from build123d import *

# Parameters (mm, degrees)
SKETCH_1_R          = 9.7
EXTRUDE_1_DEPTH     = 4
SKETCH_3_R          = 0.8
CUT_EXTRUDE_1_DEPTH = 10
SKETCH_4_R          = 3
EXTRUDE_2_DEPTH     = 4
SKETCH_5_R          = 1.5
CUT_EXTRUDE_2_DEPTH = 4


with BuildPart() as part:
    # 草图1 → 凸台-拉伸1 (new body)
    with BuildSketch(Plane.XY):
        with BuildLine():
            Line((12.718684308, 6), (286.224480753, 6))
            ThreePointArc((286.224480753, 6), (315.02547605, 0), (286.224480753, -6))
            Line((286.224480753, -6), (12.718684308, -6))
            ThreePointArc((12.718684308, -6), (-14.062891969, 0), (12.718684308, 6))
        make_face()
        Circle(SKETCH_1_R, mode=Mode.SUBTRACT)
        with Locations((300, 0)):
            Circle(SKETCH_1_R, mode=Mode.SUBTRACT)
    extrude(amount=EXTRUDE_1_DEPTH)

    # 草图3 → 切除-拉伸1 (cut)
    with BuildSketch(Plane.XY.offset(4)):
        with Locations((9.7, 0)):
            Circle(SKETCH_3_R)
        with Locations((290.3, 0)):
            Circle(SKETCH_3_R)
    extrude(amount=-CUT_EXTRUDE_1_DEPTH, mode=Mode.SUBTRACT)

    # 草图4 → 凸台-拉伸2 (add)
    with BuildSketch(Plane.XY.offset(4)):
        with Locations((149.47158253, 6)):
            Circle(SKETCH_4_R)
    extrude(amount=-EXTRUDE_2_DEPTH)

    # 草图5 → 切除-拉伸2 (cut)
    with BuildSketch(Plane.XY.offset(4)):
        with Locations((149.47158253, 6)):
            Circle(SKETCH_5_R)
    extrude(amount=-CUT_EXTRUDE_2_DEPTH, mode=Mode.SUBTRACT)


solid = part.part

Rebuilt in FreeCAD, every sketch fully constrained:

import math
import FreeCAD as App
import Part
import Sketcher
from FreeCAD import Vector

doc = App.newDocument("Part")
body = doc.addObject("PartDesign::Body", "Body")

# Sketch on XY plane
sketch1 = doc.addObject("Sketcher::SketchObject", "Sketch")
body.addObject(sketch1)
sketch1.AttachmentSupport = (doc.XY_Plane, [""])
sketch1.MapMode = "FlatFace"
sketch1.addGeometry([
    Part.LineSegment(Vector(286, 6, 0), Vector(13, 6, 0)),  # 0
    Part.ArcOfCircle(Part.Circle(Vector(0, 0, 0), Vector(0, 0, 1), 14), math.radians(25), math.radians(335)),  # 1
    Part.LineSegment(Vector(13, -6, 0), Vector(286, -6, 0)),  # 2
    Part.ArcOfCircle(Part.Circle(Vector(300, 0, 0), Vector(0, 0, 1), 15), math.radians(-156), math.radians(156)),  # 3
    Part.Circle(Vector(300, 0, 0), Vector(0, 0, 1), 10),  # 4
    Part.Circle(Vector(0, 0, 0), Vector(0, 0, 1), 10),  # 5
], False)
sketch1.addConstraint([
    Sketcher.Constraint("Coincident", 0, 2, 1, 1),
    Sketcher.Constraint("Coincident", 1, 2, 2, 1),
    Sketcher.Constraint("Coincident", 2, 2, 3, 1),
    Sketcher.Constraint("Coincident", 3, 2, 0, 1),
    Sketcher.Constraint("Horizontal", 0),
    Sketcher.Constraint("Horizontal", 2),
    Sketcher.Constraint("Coincident", 1, 3, -1, 1),
    Sketcher.Constraint("Coincident", 5, 3, -1, 1),
    Sketcher.Constraint("Coincident", 4, 3, 3, 3),
    Sketcher.Constraint("Equal", 4, 5),
    Sketcher.Constraint("Symmetric", 2, 2, 3, 2, -1),
    Sketcher.Constraint("Diameter", 4, 19.4),
    Sketcher.Constraint("DistanceX", -1, 1, 3, 3, 300.0),
    Sketcher.Constraint("DistanceY", -1, 1, 0, 2, 6.0),
    Sketcher.Constraint("Radius", 1, 14.062892),
    Sketcher.Constraint("Radius", 3, 15.025476),
])
pad1 = doc.addObject("PartDesign::Pad", "Pad")
body.addObject(pad1)
pad1.Profile = sketch1
pad1.Length = 4

# Sketch on XY plane
sketch2 = doc.addObject("Sketcher::SketchObject", "Sketch001")
body.addObject(sketch2)
sketch2.AttachmentSupport = (doc.XY_Plane, [""])
sketch2.MapMode = "FlatFace"
sketch2.AttachmentOffset = App.Placement(Vector(0, 0, 4), App.Rotation())
sketch2.addGeometry([
    Part.Circle(Vector(9.7, 0, 0), Vector(0, 0, 1), 0.8),
    Part.Circle(Vector(290.3, 0, 0), Vector(0, 0, 1), 0.8),
], False)
sketch2.addConstraint([
    Sketcher.Constraint("Equal", 0, 1),
    Sketcher.Constraint("PointOnObject", 0, 3, -1),
    Sketcher.Constraint("PointOnObject", 1, 3, -1),
    Sketcher.Constraint("Diameter", 0, 1.6),
    Sketcher.Constraint("DistanceX", -1, 1, 0, 3, 9.7),
    Sketcher.Constraint("DistanceX", -1, 1, 1, 3, 290.3),
])
pocket1 = doc.addObject("PartDesign::Pocket", "Pocket")
body.addObject(pocket1)
pocket1.Profile = sketch2
pocket1.Length = 10

# Sketch on XY plane
sketch3 = doc.addObject("Sketcher::SketchObject", "Sketch002")
body.addObject(sketch3)
sketch3.AttachmentSupport = (doc.XY_Plane, [""])
sketch3.MapMode = "FlatFace"
sketch3.AttachmentOffset = App.Placement(Vector(0, 0, 4), App.Rotation())
sketch3.addGeometry(Part.Circle(Vector(149.5, 6, 0), Vector(0, 0, 1), 3), False)
sketch3.addConstraint([
    Sketcher.Constraint("Diameter", 0, 6.0),
    Sketcher.Constraint("DistanceY", -1, 1, 0, 3, 6.0),
    Sketcher.Constraint("DistanceX", -1, 1, 0, 3, 149.471583),
])
pad2 = doc.addObject("PartDesign::Pad", "Pad001")
body.addObject(pad2)
pad2.Profile = sketch3
pad2.Length = 4
pad2.Reversed = True

# Sketch on XY plane
sketch4 = doc.addObject("Sketcher::SketchObject", "Sketch003")
body.addObject(sketch4)
sketch4.AttachmentSupport = (doc.XY_Plane, [""])
sketch4.MapMode = "FlatFace"
sketch4.AttachmentOffset = App.Placement(Vector(0, 0, 4), App.Rotation())
sketch4.addGeometry(Part.Circle(Vector(149.5, 6, 0), Vector(0, 0, 1), 1.5), False)
sketch4.addConstraint([
    Sketcher.Constraint("Diameter", 0, 3.0),
    Sketcher.Constraint("DistanceY", -1, 1, 0, 3, 6.0),
    Sketcher.Constraint("DistanceX", -1, 1, 0, 3, 149.471583),
])
pocket2 = doc.addObject("PartDesign::Pocket", "Pocket001")
body.addObject(pocket2)
pocket2.Profile = sketch4
pocket2.Length = 4

doc.recompute()
